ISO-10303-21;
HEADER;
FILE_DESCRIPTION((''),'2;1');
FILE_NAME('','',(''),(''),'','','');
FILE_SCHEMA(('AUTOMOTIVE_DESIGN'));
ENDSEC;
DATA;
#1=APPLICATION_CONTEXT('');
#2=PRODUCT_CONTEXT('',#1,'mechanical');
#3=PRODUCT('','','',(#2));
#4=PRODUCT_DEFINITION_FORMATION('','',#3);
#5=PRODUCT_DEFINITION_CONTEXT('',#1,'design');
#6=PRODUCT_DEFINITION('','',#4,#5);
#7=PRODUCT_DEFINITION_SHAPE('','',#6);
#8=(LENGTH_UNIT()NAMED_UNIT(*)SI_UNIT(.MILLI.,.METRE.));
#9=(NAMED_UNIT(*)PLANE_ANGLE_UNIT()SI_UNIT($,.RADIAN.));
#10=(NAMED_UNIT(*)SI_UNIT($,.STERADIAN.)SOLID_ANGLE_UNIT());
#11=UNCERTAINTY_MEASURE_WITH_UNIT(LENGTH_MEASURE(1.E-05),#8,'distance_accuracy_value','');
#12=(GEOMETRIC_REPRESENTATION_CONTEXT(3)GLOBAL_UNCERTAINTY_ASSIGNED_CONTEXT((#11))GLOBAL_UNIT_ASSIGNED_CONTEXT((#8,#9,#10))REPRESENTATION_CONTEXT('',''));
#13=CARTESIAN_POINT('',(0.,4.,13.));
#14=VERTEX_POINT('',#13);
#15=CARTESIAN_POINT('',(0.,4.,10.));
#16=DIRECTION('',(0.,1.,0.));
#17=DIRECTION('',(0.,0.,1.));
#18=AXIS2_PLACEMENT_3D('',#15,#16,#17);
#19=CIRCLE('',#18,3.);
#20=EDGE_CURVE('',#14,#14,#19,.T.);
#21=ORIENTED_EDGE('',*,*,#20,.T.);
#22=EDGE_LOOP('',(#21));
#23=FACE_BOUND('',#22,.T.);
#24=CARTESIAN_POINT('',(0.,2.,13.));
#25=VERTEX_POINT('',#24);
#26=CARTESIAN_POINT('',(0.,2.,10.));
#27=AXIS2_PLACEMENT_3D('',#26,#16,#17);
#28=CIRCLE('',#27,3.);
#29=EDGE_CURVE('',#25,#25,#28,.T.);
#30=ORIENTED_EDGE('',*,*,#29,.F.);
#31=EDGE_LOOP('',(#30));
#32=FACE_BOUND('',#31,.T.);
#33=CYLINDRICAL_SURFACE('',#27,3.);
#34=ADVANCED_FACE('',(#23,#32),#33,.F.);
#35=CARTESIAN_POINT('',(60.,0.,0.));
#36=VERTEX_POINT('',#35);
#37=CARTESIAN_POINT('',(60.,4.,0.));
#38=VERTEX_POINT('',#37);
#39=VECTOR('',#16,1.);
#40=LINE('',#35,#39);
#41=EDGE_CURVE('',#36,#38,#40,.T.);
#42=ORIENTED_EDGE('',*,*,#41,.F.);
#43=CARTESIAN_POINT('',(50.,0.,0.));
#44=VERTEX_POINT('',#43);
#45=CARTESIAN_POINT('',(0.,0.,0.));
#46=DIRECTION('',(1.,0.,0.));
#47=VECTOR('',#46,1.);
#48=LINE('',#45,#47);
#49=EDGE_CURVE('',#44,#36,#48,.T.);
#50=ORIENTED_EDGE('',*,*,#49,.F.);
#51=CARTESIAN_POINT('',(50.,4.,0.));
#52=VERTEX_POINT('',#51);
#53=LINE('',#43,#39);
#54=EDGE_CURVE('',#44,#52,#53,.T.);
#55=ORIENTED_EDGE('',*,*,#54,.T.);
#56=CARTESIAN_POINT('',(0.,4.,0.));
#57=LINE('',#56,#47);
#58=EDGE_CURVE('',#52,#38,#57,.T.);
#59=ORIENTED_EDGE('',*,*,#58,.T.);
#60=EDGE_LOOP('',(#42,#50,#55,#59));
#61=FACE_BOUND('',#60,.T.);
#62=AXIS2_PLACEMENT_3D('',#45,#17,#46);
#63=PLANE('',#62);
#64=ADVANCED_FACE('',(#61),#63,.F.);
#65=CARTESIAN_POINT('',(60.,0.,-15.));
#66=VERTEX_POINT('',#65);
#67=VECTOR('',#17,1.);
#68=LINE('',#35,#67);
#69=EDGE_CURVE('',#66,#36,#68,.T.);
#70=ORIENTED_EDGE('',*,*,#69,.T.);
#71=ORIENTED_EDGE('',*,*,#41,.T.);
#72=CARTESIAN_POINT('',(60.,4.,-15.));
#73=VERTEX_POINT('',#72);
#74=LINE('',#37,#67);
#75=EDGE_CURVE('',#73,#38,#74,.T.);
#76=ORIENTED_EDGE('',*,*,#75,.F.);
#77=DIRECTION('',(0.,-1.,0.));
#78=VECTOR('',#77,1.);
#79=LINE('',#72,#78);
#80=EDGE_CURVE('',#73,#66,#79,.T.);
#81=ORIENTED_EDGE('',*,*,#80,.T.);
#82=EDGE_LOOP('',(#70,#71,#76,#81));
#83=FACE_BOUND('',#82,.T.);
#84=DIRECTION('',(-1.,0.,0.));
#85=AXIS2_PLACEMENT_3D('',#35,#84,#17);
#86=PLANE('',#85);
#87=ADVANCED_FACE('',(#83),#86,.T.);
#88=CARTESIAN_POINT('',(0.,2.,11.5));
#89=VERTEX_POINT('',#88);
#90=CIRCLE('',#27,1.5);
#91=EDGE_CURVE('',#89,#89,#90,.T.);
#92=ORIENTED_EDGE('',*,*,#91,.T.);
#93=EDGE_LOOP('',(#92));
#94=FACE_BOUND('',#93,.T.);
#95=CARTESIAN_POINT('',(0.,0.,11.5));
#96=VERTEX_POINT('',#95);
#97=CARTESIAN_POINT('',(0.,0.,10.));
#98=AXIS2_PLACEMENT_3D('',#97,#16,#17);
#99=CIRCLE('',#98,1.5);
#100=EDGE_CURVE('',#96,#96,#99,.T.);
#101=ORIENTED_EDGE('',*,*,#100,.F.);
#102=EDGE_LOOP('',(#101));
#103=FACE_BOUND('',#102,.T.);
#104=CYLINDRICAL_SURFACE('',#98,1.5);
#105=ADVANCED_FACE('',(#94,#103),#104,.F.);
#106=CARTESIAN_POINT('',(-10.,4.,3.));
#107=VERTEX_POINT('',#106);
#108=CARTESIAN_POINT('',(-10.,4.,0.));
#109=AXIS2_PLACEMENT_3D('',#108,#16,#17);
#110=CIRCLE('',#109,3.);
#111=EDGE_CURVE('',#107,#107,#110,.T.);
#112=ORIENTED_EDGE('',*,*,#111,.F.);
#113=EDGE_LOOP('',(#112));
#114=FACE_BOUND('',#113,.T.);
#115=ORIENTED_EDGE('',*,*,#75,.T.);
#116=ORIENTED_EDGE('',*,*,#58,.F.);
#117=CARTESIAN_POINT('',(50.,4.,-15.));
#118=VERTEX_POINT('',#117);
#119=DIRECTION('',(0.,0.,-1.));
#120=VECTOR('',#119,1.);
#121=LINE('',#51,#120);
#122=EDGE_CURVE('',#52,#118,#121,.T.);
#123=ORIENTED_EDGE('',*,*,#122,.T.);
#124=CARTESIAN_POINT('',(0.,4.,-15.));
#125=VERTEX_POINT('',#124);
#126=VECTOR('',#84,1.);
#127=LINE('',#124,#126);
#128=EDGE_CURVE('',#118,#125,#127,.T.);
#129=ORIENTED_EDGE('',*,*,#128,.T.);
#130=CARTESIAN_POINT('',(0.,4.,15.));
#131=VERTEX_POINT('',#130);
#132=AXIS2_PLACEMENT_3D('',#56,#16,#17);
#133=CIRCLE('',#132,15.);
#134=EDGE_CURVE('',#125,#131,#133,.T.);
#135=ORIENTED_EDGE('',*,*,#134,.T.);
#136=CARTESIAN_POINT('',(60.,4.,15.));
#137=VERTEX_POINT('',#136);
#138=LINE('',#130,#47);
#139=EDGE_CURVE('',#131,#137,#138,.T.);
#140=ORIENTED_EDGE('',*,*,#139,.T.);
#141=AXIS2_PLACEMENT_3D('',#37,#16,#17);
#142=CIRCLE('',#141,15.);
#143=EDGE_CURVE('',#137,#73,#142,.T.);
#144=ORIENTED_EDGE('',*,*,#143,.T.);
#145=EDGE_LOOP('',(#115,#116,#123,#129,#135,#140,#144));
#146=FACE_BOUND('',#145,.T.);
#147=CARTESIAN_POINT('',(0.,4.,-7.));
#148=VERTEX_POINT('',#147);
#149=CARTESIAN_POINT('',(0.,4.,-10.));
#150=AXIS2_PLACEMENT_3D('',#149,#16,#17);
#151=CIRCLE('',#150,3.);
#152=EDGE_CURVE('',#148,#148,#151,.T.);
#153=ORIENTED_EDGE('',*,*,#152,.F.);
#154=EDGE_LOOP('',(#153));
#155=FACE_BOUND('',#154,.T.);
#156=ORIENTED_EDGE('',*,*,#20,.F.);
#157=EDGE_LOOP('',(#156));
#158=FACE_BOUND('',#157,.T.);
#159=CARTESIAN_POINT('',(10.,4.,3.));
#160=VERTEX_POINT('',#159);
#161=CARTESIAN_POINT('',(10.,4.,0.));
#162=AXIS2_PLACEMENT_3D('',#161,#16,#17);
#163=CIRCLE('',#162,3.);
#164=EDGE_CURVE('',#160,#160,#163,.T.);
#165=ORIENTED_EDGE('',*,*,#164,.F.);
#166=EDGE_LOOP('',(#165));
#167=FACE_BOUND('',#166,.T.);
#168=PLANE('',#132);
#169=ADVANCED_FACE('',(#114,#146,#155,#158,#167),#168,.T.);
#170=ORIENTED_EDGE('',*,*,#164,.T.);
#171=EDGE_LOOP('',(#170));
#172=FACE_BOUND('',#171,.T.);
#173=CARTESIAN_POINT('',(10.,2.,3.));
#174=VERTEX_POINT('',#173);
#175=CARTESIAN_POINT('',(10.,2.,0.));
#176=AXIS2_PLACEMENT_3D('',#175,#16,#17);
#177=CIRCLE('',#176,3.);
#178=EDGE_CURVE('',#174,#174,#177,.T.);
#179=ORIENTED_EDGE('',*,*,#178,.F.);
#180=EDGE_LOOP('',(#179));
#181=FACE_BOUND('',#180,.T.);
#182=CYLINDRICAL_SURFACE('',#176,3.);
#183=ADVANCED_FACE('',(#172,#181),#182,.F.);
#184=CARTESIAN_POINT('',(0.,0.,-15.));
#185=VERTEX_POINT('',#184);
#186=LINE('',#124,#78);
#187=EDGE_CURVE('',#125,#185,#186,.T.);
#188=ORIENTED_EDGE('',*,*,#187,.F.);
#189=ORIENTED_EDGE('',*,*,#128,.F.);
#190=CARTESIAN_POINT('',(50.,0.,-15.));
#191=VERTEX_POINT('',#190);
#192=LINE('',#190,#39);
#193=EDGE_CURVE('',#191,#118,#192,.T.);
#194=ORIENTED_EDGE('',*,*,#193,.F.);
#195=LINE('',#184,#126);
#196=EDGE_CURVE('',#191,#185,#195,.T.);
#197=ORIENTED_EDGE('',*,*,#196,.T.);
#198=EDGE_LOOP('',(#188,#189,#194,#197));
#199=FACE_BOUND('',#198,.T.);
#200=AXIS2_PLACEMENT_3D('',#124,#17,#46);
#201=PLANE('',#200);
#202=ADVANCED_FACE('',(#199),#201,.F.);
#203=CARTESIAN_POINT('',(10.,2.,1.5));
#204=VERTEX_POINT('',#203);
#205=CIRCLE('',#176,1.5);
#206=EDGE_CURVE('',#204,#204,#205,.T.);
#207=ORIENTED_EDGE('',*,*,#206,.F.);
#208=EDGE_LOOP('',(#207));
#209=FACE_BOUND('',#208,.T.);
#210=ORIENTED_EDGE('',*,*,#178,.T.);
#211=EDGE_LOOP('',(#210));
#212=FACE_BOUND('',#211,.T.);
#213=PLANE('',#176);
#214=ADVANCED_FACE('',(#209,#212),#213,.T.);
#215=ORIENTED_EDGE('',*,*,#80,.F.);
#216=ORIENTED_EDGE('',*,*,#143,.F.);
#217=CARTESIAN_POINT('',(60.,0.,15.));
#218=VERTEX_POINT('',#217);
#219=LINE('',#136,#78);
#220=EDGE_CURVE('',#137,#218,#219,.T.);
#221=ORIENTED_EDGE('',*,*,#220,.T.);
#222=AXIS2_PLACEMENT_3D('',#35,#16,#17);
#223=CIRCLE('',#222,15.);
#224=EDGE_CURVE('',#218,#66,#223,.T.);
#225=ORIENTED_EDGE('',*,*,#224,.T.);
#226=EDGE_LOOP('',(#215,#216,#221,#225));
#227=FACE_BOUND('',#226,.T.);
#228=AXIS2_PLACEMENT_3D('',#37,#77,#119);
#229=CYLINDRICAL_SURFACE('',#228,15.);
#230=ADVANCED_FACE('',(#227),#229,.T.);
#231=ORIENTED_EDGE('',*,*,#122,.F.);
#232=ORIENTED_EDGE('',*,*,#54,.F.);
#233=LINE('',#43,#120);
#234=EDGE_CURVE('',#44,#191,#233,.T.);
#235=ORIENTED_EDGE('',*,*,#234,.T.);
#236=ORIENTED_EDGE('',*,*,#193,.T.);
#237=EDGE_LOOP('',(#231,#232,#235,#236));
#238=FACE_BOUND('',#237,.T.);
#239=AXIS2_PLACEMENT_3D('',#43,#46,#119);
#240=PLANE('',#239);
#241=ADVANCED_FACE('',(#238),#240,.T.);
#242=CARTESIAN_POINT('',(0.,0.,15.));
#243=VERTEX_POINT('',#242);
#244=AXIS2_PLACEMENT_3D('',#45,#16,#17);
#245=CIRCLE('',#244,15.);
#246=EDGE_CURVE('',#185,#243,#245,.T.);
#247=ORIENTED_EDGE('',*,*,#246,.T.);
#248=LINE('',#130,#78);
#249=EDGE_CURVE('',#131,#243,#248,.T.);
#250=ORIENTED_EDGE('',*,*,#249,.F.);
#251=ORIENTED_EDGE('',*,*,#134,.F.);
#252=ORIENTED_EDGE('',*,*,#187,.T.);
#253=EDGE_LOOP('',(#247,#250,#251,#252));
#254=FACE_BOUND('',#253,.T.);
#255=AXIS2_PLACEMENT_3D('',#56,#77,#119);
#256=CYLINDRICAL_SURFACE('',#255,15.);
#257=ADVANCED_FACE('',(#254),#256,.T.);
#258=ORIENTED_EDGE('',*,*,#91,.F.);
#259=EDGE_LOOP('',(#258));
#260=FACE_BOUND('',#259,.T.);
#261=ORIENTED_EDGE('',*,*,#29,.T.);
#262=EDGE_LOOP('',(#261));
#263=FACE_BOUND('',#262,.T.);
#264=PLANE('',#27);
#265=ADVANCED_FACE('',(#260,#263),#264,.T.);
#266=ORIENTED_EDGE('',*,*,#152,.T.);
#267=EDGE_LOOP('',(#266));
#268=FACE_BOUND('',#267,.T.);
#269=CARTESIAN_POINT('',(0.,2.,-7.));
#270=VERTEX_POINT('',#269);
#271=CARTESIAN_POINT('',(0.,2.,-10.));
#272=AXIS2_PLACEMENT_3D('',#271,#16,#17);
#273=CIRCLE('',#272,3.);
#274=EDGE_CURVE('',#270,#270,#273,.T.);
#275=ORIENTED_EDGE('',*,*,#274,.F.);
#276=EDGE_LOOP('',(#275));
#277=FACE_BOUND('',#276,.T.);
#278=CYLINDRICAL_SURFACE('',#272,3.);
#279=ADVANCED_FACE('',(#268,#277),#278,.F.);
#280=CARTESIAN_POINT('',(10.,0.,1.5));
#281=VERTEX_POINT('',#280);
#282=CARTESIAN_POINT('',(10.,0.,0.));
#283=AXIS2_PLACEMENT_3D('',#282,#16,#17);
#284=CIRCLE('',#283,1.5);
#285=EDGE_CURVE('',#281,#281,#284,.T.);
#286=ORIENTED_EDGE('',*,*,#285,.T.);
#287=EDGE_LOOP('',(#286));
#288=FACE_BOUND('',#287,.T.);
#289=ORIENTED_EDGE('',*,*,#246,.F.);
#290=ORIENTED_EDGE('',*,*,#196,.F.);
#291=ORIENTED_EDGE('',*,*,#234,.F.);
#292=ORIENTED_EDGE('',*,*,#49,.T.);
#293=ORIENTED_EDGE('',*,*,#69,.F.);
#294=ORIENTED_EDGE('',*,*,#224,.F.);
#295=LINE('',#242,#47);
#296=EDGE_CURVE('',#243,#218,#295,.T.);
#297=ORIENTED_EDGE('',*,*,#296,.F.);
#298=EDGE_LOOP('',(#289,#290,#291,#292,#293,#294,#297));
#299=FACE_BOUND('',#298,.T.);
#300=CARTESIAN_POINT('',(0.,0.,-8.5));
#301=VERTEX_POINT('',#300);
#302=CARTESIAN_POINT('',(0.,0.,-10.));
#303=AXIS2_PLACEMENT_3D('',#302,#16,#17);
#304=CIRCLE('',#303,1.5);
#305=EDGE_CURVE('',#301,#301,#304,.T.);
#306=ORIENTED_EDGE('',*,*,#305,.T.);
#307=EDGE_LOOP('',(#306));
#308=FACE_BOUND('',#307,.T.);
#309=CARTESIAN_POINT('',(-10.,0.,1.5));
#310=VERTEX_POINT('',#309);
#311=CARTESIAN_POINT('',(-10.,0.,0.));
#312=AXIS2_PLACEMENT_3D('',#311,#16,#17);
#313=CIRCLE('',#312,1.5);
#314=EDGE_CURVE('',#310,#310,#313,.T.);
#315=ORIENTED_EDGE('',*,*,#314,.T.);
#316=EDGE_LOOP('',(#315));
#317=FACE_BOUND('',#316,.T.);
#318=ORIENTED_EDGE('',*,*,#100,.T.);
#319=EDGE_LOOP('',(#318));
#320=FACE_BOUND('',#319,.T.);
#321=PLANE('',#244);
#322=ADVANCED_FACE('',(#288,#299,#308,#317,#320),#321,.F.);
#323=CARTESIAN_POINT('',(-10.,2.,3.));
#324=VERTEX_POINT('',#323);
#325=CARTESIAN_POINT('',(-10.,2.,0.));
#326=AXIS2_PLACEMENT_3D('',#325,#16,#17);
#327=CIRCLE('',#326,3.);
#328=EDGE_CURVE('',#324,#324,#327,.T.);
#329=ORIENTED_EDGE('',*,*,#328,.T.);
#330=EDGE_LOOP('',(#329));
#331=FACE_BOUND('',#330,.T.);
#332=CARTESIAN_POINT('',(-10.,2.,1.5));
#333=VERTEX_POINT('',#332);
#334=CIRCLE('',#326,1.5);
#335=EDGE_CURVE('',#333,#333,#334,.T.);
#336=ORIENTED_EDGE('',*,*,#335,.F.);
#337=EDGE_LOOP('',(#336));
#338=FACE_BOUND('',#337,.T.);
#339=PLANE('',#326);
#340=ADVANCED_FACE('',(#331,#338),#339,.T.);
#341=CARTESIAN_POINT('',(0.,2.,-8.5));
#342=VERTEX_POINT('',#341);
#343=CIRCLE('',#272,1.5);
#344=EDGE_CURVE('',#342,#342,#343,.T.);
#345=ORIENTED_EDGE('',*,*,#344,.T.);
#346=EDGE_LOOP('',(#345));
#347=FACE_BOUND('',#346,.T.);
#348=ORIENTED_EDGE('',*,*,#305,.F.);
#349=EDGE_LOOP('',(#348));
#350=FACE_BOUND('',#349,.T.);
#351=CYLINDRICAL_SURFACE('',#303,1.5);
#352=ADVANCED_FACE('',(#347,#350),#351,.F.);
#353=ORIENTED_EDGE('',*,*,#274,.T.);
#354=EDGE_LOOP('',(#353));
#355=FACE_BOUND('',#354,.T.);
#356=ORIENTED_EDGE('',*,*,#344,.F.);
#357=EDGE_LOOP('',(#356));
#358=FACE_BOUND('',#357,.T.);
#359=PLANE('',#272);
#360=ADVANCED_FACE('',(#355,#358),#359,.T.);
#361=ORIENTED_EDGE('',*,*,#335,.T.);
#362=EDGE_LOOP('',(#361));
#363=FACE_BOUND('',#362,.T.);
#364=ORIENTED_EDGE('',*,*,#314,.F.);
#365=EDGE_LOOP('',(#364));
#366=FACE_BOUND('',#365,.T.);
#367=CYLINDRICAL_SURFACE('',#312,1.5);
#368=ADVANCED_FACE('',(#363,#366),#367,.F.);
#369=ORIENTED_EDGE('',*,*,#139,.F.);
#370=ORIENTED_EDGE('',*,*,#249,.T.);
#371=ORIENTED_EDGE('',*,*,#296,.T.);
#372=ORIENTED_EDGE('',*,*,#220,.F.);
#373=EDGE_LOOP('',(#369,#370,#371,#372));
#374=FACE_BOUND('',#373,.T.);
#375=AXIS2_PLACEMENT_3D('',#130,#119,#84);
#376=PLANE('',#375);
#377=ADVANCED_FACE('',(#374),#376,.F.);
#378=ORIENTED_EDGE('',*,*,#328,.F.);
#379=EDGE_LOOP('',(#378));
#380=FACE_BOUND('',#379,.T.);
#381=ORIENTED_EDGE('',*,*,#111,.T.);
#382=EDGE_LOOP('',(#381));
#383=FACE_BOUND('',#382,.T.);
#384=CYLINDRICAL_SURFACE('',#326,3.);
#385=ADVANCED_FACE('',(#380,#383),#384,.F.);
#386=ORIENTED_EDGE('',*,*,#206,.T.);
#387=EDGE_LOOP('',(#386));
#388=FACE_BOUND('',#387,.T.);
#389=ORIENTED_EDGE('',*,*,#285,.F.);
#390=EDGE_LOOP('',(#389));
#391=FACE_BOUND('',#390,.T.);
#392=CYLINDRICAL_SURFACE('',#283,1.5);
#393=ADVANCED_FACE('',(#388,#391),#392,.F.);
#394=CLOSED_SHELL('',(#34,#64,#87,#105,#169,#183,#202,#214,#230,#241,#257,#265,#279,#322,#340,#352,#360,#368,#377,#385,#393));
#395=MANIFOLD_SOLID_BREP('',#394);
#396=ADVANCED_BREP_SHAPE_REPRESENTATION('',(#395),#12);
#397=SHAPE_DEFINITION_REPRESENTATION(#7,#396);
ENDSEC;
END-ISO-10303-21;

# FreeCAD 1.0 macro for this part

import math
import FreeCAD as App
import Part
import Sketcher

V = App.Vector
Q = App.Units.Quantity

doc = App.newDocument("Part")
body = doc.addObject("PartDesign::Body", "Body")

sketch1 = doc.addObject("Sketcher::SketchObject", "Sketch")
body.addObject(sketch1)
sketch1.AttachmentSupport = (doc.XZ_Plane, [""])
sketch1.MapMode = "FlatFace"
sketch1.addGeometry([
    Part.LineSegment(V(60, -15, 0), V(0, -15, 0)),
    Part.ArcOfCircle(Part.Circle(V(0, 0, 0), V(0, 0, 1), 15), math.radians(90), math.radians(270)),
    Part.LineSegment(V(0, 15, 0), V(60, 15, 0)),
    Part.ArcOfCircle(Part.Circle(V(60, 0, 0), V(0, 0, 1), 15), math.radians(-90), math.radians(90)),
], False)
sketch1.addConstraint([
    Sketcher.Constraint("Tangent", 0, 2, 1, 2),
    Sketcher.Constraint("Tangent", 1, 1, 2, 1),
    Sketcher.Constraint("Tangent", 2, 2, 3, 2),
    Sketcher.Constraint("Tangent", 3, 1, 0, 1),
    Sketcher.Constraint("Horizontal", 0),
    Sketcher.Constraint("Horizontal", 2),
    Sketcher.Constraint("Coincident", 1, 3, -1, 1),
    Sketcher.Constraint("Radius", 1, Q("15 mm")),
    Sketcher.Constraint("DistanceX", 0, 2, 0, 1, Q("60 mm")),
])
pad1 = doc.addObject("PartDesign::Pad", "Pad")
body.addObject(pad1)
pad1.Profile = sketch1
pad1.Length = 4
pad1.Reversed = True

sketch2 = doc.addObject("Sketcher::SketchObject", "Sketch001")
body.addObject(sketch2)
sketch2.AttachmentSupport = (doc.XZ_Plane, [""])
sketch2.MapMode = "FlatFace"
sketch2.AttachmentOffset = App.Placement(V(0, 0, -4), App.Rotation())
sketch2.addGeometry([
    Part.LineSegment(V(50, -15, 0), V(50, 0, 0)),
    Part.LineSegment(V(50, 0, 0), V(60, 0, 0)),
    Part.LineSegment(V(60, 0, 0), V(60, -15, 0)),
    Part.LineSegment(V(60, -15, 0), V(50, -15, 0)),
], False)
sketch2.addConstraint([
    Sketcher.Constraint("Coincident", 0, 2, 1, 1),
    Sketcher.Constraint("Coincident", 1, 2, 2, 1),
    Sketcher.Constraint("Coincident", 2, 2, 3, 1),
    Sketcher.Constraint("Coincident", 3, 2, 0, 1),
    Sketcher.Constraint("Vertical", 0),
    Sketcher.Constraint("Horizontal", 1),
    Sketcher.Constraint("Vertical", 2),
    Sketcher.Constraint("Horizontal", 3),
    Sketcher.Constraint("PointOnObject", 0, 2, -1),
    Sketcher.Constraint("DistanceX", 1, 1, 1, 2, Q("10 mm")),
    Sketcher.Constraint("DistanceY", 0, 1, 0, 2, Q("15 mm")),
    Sketcher.Constraint("DistanceX", -1, 1, 0, 2, Q("50 mm")),
])
pocket1 = doc.addObject("PartDesign::Pocket", "Pocket")
body.addObject(pocket1)
pocket1.Profile = sketch2
pocket1.Length = 4
pocket1.Reversed = True

sketch3 = doc.addObject("Sketcher::SketchObject", "Sketch002")
body.addObject(sketch3)
sketch3.AttachmentSupport = (doc.XZ_Plane, [""])
sketch3.MapMode = "FlatFace"
sketch3.AttachmentOffset = App.Placement(V(0, 0, -4), App.Rotation())
sketch3.addGeometry([
    Part.Circle(V(-10, 0, 0), V(0, 0, 1), 3),
    Part.Circle(V(0, -10, 0), V(0, 0, 1), 3),
    Part.Circle(V(10, 0, 0), V(0, 0, 1), 3),
    Part.Circle(V(0, 10, 0), V(0, 0, 1), 3),
], False)
sketch3.addConstraint([
    Sketcher.Constraint("Equal", 0, 1),
    Sketcher.Constraint("Equal", 1, 2),
    Sketcher.Constraint("Equal", 2, 3),
    Sketcher.Constraint("Symmetric", 0, 3, 2, 3, -1, 1),
    Sketcher.Constraint("Symmetric", 1, 3, 3, 3, -1, 1),
    Sketcher.Constraint("PointOnObject", 0, 3, -1),
    Sketcher.Constraint("PointOnObject", 1, 3, -2),
    Sketcher.Constraint("Diameter", 0, Q("6 mm")),
    Sketcher.Constraint("DistanceX", 0, 3, -1, 1, Q("10 mm")),
    Sketcher.Constraint("DistanceY", 1, 3, -1, 1, Q("10 mm")),
])
pocket2 = doc.addObject("PartDesign::Pocket", "Pocket001")
body.addObject(pocket2)
pocket2.Profile = sketch3
pocket2.Length = 2
pocket2.Reversed = True

sketch4 = doc.addObject("Sketcher::SketchObject", "Sketch003")
body.addObject(sketch4)
sketch4.AttachmentSupport = (doc.XZ_Plane, [""])
sketch4.MapMode = "FlatFace"
sketch4.AttachmentOffset = App.Placement(V(0, 0, -2), App.Rotation())
sketch4.addGeometry([
    Part.Circle(V(-10, 0, 0), V(0, 0, 1), 1.5),
    Part.Circle(V(0, -10, 0), V(0, 0, 1), 1.5),
    Part.Circle(V(10, 0, 0), V(0, 0, 1), 1.5),
    Part.Circle(V(0, 10, 0), V(0, 0, 1), 1.5),
], False)
sketch4.addConstraint([
    Sketcher.Constraint("Equal", 0, 1),
    Sketcher.Constraint("Equal", 1, 2),
    Sketcher.Constraint("Equal", 2, 3),
    Sketcher.Constraint("Symmetric", 0, 3, 2, 3, -1, 1),
    Sketcher.Constraint("Symmetric", 1, 3, 3, 3, -1, 1),
    Sketcher.Constraint("PointOnObject", 0, 3, -1),
    Sketcher.Constraint("PointOnObject", 1, 3, -2),
    Sketcher.Constraint("Diameter", 0, Q("3 mm")),
    Sketcher.Constraint("DistanceX", 0, 3, -1, 1, Q("10 mm")),
    Sketcher.Constraint("DistanceY", 1, 3, -1, 1, Q("10 mm")),
])
pocket3 = doc.addObject("PartDesign::Pocket", "Pocket002")
body.addObject(pocket3)
pocket3.Profile = sketch4
pocket3.Length = 2
pocket3.Reversed = True

doc.recompute()
